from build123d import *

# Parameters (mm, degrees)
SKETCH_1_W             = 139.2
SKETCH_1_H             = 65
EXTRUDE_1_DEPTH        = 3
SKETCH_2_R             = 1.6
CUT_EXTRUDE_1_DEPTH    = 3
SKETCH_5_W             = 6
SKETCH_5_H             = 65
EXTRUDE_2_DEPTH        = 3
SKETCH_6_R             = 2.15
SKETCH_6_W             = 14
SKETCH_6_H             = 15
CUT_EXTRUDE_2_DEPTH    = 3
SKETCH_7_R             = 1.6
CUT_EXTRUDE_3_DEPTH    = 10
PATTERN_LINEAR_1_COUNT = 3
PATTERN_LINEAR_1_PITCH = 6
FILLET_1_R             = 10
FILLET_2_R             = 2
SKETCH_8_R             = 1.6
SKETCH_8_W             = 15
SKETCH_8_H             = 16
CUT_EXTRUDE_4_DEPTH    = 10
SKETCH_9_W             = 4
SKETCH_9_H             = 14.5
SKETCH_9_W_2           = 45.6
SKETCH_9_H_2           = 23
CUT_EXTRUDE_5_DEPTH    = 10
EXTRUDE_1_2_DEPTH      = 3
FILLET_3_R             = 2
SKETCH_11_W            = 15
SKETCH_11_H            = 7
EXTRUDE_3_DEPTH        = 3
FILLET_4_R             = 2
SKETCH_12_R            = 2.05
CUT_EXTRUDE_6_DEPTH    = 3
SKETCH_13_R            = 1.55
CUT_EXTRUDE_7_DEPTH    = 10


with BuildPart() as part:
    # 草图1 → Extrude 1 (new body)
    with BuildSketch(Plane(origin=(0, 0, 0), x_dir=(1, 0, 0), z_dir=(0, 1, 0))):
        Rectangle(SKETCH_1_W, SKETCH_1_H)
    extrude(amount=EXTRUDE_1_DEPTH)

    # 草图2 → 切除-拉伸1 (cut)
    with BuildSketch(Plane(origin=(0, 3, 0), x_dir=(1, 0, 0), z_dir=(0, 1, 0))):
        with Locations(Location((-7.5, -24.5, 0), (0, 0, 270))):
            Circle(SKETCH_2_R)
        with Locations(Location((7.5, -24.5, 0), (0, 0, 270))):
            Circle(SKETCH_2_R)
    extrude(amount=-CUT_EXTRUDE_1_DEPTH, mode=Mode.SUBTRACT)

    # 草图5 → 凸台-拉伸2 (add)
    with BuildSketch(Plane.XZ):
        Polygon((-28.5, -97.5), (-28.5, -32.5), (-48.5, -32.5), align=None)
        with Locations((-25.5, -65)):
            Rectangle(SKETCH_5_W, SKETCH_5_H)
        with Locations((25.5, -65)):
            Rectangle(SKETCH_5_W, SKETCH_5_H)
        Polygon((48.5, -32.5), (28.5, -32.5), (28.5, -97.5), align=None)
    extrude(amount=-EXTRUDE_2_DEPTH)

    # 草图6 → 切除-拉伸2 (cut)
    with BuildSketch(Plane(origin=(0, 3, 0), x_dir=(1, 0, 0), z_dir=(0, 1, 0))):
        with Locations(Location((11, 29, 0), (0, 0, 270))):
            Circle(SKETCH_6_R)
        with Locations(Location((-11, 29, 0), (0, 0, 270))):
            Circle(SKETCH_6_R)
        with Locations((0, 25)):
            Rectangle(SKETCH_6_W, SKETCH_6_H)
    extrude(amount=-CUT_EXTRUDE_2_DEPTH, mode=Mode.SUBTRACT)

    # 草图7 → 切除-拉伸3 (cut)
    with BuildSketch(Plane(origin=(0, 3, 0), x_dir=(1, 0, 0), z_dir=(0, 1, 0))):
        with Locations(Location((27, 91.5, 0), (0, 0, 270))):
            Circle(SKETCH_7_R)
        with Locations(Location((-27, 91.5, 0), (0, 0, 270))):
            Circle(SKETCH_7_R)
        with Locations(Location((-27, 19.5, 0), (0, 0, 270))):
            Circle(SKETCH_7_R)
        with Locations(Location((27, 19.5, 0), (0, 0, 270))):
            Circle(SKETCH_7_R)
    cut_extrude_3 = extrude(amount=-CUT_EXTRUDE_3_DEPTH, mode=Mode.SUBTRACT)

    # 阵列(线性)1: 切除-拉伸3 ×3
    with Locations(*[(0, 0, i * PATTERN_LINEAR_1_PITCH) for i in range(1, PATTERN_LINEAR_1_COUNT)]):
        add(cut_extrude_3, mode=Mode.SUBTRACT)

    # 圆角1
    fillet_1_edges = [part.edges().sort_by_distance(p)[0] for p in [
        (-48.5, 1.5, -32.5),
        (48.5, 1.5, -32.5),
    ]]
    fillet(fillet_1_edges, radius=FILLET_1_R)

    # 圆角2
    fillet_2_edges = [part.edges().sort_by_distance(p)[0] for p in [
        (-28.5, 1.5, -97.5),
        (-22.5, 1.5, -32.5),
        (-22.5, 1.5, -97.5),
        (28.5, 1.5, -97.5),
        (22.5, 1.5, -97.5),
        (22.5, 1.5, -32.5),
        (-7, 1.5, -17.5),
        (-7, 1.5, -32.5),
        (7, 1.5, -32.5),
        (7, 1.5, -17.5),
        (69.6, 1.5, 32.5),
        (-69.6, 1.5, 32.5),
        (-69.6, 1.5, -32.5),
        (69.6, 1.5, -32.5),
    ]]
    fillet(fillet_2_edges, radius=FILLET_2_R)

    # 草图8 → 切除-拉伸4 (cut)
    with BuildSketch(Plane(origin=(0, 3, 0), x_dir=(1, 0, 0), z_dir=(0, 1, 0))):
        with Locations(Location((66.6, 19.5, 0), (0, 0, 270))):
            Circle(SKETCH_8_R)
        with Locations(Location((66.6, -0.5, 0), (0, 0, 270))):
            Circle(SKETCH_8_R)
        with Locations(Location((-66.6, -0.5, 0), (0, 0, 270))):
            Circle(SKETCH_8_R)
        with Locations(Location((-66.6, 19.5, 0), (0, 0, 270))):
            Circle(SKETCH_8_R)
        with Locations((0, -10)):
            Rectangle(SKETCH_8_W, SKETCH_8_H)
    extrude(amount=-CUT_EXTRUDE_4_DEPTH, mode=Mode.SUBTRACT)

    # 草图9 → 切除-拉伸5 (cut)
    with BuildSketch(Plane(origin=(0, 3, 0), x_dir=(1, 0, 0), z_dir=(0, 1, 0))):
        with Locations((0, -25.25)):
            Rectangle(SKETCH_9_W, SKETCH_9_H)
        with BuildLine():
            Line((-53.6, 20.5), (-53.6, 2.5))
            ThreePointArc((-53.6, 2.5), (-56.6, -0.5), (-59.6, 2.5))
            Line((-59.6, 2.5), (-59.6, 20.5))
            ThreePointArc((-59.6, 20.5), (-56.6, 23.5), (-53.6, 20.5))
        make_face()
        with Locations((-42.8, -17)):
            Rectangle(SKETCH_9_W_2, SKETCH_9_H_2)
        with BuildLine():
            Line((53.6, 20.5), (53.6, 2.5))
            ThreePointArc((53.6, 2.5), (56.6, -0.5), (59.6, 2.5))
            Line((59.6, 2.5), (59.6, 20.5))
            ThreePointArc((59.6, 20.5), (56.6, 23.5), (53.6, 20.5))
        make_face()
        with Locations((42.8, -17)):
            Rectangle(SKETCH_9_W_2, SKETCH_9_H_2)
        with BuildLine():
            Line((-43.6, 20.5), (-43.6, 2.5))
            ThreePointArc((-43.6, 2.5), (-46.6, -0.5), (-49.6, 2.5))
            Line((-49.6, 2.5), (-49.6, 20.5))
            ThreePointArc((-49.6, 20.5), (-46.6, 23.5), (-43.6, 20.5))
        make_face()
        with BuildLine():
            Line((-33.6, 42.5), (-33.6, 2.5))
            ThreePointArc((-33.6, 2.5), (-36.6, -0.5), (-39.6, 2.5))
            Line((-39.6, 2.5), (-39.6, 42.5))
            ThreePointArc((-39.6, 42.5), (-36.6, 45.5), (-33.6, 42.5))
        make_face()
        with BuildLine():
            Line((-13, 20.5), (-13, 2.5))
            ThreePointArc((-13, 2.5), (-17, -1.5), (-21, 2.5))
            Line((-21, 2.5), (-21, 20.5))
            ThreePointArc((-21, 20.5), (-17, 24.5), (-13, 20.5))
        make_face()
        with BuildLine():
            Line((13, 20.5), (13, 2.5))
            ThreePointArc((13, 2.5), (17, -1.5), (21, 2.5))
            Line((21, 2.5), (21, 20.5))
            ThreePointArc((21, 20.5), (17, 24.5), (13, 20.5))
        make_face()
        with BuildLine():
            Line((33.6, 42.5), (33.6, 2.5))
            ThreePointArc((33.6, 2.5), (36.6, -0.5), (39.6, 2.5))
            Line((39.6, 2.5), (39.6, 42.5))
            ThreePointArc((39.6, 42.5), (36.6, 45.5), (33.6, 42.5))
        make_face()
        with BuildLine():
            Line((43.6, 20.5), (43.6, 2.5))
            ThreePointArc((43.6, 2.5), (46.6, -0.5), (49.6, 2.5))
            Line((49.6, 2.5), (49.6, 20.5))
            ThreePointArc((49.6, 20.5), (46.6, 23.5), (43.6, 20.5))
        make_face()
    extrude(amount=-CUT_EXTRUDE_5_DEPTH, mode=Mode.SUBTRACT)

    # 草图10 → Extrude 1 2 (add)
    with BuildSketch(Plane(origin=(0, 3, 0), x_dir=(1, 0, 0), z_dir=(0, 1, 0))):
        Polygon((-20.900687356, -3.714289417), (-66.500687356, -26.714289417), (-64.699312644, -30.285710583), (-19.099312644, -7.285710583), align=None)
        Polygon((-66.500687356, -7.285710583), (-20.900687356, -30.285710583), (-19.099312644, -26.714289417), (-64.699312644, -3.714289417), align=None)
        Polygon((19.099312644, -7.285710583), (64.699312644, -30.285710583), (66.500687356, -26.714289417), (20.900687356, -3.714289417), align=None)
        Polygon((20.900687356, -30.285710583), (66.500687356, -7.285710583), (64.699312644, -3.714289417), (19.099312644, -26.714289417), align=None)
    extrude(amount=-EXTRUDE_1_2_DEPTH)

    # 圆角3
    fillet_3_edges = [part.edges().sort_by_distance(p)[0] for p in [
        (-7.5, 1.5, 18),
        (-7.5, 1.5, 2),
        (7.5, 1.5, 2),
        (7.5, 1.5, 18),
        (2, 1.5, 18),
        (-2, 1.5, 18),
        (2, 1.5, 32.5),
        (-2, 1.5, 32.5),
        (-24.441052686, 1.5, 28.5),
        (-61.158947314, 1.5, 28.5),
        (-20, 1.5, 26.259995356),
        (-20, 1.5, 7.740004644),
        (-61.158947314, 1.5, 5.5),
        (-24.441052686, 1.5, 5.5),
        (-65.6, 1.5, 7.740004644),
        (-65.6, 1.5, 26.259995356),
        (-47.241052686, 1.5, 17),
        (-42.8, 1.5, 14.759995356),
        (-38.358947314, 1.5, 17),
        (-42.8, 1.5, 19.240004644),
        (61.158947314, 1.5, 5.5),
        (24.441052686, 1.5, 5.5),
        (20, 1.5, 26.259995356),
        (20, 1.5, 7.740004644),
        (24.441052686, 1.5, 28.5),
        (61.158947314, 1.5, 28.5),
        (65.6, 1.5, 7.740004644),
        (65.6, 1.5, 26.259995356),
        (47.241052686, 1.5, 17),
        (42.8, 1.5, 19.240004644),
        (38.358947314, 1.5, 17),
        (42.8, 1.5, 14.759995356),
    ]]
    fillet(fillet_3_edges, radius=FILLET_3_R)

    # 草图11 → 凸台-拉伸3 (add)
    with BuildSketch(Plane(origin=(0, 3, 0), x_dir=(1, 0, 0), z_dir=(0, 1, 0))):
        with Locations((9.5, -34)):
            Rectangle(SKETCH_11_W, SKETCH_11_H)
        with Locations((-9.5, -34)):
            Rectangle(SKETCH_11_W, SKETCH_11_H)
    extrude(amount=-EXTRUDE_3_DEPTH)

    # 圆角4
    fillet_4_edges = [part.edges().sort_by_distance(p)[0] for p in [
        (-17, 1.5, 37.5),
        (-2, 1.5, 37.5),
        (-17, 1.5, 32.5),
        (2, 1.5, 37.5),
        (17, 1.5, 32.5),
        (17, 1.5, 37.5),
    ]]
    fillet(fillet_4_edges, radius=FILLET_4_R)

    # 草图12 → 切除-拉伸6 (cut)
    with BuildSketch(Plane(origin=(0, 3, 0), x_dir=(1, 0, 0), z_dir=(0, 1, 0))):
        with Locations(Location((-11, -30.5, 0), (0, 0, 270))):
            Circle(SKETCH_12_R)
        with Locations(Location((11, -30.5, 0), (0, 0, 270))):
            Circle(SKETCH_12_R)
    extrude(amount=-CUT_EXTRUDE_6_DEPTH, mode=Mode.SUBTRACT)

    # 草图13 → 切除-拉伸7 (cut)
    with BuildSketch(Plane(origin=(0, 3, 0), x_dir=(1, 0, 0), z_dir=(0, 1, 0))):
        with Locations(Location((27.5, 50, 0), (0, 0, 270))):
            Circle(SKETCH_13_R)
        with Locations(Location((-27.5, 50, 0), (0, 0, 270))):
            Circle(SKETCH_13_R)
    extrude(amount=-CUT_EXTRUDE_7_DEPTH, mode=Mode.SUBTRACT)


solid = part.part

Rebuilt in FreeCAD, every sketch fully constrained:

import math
import FreeCAD as App
import Part
import Sketcher


def edges_at(feature, points):
    """Names of the edges that pass closest to the given points."""
    edges = feature.Shape.Edges
    near = lambda p: min(range(len(edges)), key=lambda i: edges[i].distToShape(Part.Vertex(*p))[0])
    return sorted({f"Edge{near(p) + 1}" for p in points})


def add_polygon(sketch, points):
    """Adds a closed chain of lines whose ends are joined by coincident constraints."""
    first, n = sketch.GeometryCount, len(points)
    for a, b in zip(points, points[1:] + points[:1]):
        sketch.addGeometry(Part.LineSegment(App.Vector(*a, 0), App.Vector(*b, 0)), False)
    for i in range(n):
        sketch.addConstraint(Sketcher.Constraint("Coincident", first + i, 2, first + (i + 1) % n, 1))

doc = App.newDocument("Part")
body = doc.addObject("PartDesign::Body", "Body")

# Sketch on XZ plane
sketch1 = body.newObject("Sketcher::SketchObject", "Sketch")
sketch1.AttachmentSupport = (doc.getObject("XZ_Plane"), [""])
sketch1.MapMode = "FlatFace"
add_polygon(sketch1, [(-70, -32), (-70, 32), (70, 32), (70, -32)])  # lines 0-3
sketch1.addConstraint([
    Sketcher.Constraint("Vertical", 0),
    Sketcher.Constraint("Horizontal", 1),
    Sketcher.Constraint("Vertical", 2),
    Sketcher.Constraint("Horizontal", 3),
    Sketcher.Constraint("Symmetric", 0, 2, 2, 2, -1, 1),
    Sketcher.Constraint("DistanceY", 0, 1, 0, 2, 65.0),
    Sketcher.Constraint("DistanceX", 1, 1, 1, 2, 139.2),
])
pad1 = body.newObject("PartDesign::Pad", "Pad")
pad1.Profile = sketch1
pad1.Length = 3
pad1.Reversed = True

# Sketch on XZ plane
sketch2 = body.newObject("Sketcher::SketchObject", "Sketch001")
sketch2.AttachmentSupport = (doc.getObject("XZ_Plane"), [""])
sketch2.MapMode = "FlatFace"
sketch2.AttachmentOffset = App.Placement(App.Vector(0, 0, -3), App.Rotation())
sketch2.addGeometry([
    Part.Circle(App.Vector(-7.5, 24.5, 0), App.Vector(0, 0, 1), 1.6),
    Part.Circle(App.Vector(7.5, 24.5, 0), App.Vector(0, 0, 1), 1.6),
], False)
sketch2.addConstraint([
    Sketcher.Constraint("Equal", 0, 1),
    Sketcher.Constraint("Symmetric", 0, 3, 1, 3, -2),
    Sketcher.Constraint("Diameter", 0, 3.2),
    Sketcher.Constraint("DistanceX", 0, 3, 1, 3, 15.0),
    Sketcher.Constraint("DistanceY", -1, 1, 0, 3, 24.5),
])
pocket1 = body.newObject("PartDesign::Pocket", "Pocket")
pocket1.Profile = sketch2
pocket1.Length = 3
pocket1.Reversed = True

# Sketch on XZ plane
sketch3 = body.newObject("Sketcher::SketchObject", "Sketch002")
sketch3.AttachmentSupport = (doc.getObject("XZ_Plane"), [""])
sketch3.MapMode = "FlatFace"
add_polygon(sketch3, [(-48, -32), (-28, -98), (-22, -98), (-22, -32)])  # lines 0-3
add_polygon(sketch3, [(22, -32), (22, -98), (28, -98), (48, -32)])  # lines 4-7
sketch3.addConstraint([
    Sketcher.Constraint("Horizontal", 1),
    Sketcher.Constraint("Vertical", 2),
    Sketcher.Constraint("Horizontal", 3),
    Sketcher.Constraint("Vertical", 4),
    Sketcher.Constraint("Horizontal", 5),
    Sketcher.Constraint("Horizontal", 7),
    Sketcher.Constraint("Symmetric", 1, 2, 4, 2, -2),
    Sketcher.Constraint("Symmetric", 3, 2, 6, 2, -2),
    Sketcher.Constraint("Equal", 1, 5),
    Sketcher.Constraint("DistanceX", 1, 1, 1, 2, 6.0),
    Sketcher.Constraint("DistanceX", 3, 2, 3, 1, 26.0),
    Sketcher.Constraint("DistanceY", 2, 1, 2, 2, 65.0),
    Sketcher.Constraint("DistanceX", 1, 2, 4, 2, 45.0),
    Sketcher.Constraint("DistanceY", 0, 2, -1, 1, 97.5),
])
pad2 = body.newObject("PartDesign::Pad", "Pad001")
pad2.Profile = sketch3
pad2.Length = 3
pad2.Reversed = True

# Sketch on XZ plane
sketch4 = body.newObject("Sketcher::SketchObject", "Sketch003")
sketch4.AttachmentSupport = (doc.getObject("XZ_Plane"), [""])
sketch4.MapMode = "FlatFace"
sketch4.AttachmentOffset = App.Placement(App.Vector(0, 0, -3), App.Rotation())
sketch4.addGeometry(Part.Circle(App.Vector(11, -29, 0), App.Vector(0, 0, 1), 2.1), False)  # 0
sketch4.addGeometry(Part.Circle(App.Vector(-11, -29, 0), App.Vector(0, 0, 1), 2.1), False)  # 1
add_polygon(sketch4, [(-7, -32.5), (-7, -17.5), (7, -17.5), (7, -32.5)])  # lines 2-5
sketch4.addConstraint([
    Sketcher.Constraint("Vertical", 2),
    Sketcher.Constraint("Horizontal", 3),
    Sketcher.Constraint("Vertical", 4),
    Sketcher.Constraint("Horizontal", 5),
    Sketcher.Constraint("Equal", 0, 1),
    Sketcher.Constraint("Symmetric", 0, 3, 1, 3, -2),
    Sketcher.Constraint("Diameter", 0, 4.3),
    Sketcher.Constraint("DistanceX", 3, 1, 3, 2, 14.0),
    Sketcher.Constraint("DistanceY", 2, 1, 2, 2, 15.0),
    Sketcher.Constraint("DistanceX", -1, 1, 0, 3, 11.0),
    Sketcher.Constraint("DistanceY", 0, 3, -1, 1, 29.0),
    Sketcher.Constraint("DistanceX", 2, 2, -1, 1, 7.0),
    Sketcher.Constraint("DistanceY", 2, 2, -1, 1, 17.5),
])
pocket2 = body.newObject("PartDesign::Pocket", "Pocket001")
pocket2.Profile = sketch4
pocket2.Length = 3
pocket2.Reversed = True

# Sketch on XZ plane
sketch5 = body.newObject("Sketcher::SketchObject", "Sketch004")
sketch5.AttachmentSupport = (doc.getObject("XZ_Plane"), [""])
sketch5.MapMode = "FlatFace"
sketch5.AttachmentOffset = App.Placement(App.Vector(0, 0, -3), App.Rotation())
sketch5.addGeometry([
    Part.Circle(App.Vector(27, -91.5, 0), App.Vector(0, 0, 1), 1.6),
    Part.Circle(App.Vector(-27, -91.5, 0), App.Vector(0, 0, 1), 1.6),
    Part.Circle(App.Vector(-27, -19.5, 0), App.Vector(0, 0, 1), 1.6),
    Part.Circle(App.Vector(27, -19.5, 0), App.Vector(0, 0, 1), 1.6),
], False)
sketch5.addConstraint([
    Sketcher.Constraint("Equal", 0, 1),
    Sketcher.Constraint("Equal", 1, 2),
    Sketcher.Constraint("Equal", 2, 3),
    Sketcher.Constraint("Symmetric", 0, 3, 1, 3, -2),
    Sketcher.Constraint("Symmetric", 2, 3, 3, 3, -2),
    Sketcher.Constraint("Vertical", 1, 3, 2, 3),
    Sketcher.Constraint("Diameter", 0, 3.2),
    Sketcher.Constraint("DistanceX", -1, 1, 0, 3, 27.0),
    Sketcher.Constraint("DistanceY", 1, 3, 2, 3, 72.0),
    Sketcher.Constraint("DistanceY", 0, 3, -1, 1, 91.5),
])
pocket3 = body.newObject("PartDesign::Pocket", "Pocket002")
pocket3.Profile = sketch5
pocket3.Length = 10
pocket3.Reversed = True
doc.recompute()

linearpattern = body.newObject("PartDesign::LinearPattern", "LinearPattern")
linearpattern.Originals = [pocket3]
linearpattern.Direction = (doc.getObject("Z_Axis"), [""])
linearpattern.Mode = "offset"
linearpattern.Offset = 6
linearpattern.Occurrences = 3
body.Tip = linearpattern
doc.recompute()

fillet = body.newObject("PartDesign::Fillet", "Fillet")
fillet.Base = (linearpattern, edges_at(linearpattern, [(-48.5, 1.5, -32.5), (48.5, 1.5, -32.5)]))
fillet.Radius = 10
doc.recompute()

fillet2 = body.newObject("PartDesign::Fillet", "Fillet001")
fillet2.Base = (fillet, edges_at(fillet, [
    (-28.5, 1.5, -97.5),
    (-22.5, 1.5, -32.5),
    (-22.5, 1.5, -97.5),
    (28.5, 1.5, -97.5),
    (22.5, 1.5, -97.5),
    (22.5, 1.5, -32.5),
    (-7, 1.5, -17.5),
    (-7, 1.5, -32.5),
    (7, 1.5, -32.5),
    (7, 1.5, -17.5),
    (69.6, 1.5, 32.5),
    (-69.6, 1.5, 32.5),
    (-69.6, 1.5, -32.5),
    (69.6, 1.5, -32.5),
]))
fillet2.Radius = 2

# Sketch on XZ plane
sketch6 = body.newObject("Sketcher::SketchObject", "Sketch005")
sketch6.AttachmentSupport = (doc.getObject("XZ_Plane"), [""])
sketch6.MapMode = "FlatFace"
sketch6.AttachmentOffset = App.Placement(App.Vector(0, 0, -3), App.Rotation())
sketch6.addGeometry(Part.Circle(App.Vector(66.6, -19.5, 0), App.Vector(0, 0, 1), 1.6), False)  # 0
sketch6.addGeometry(Part.Circle(App.Vector(66.6, 0.5, 0), App.Vector(0, 0, 1), 1.6), False)  # 1
sketch6.addGeometry(Part.Circle(App.Vector(-66.6, 0.5, 0), App.Vector(0, 0, 1), 1.6), False)  # 2
sketch6.addGeometry(Part.Circle(App.Vector(-66.6, -19.5, 0), App.Vector(0, 0, 1), 1.6), False)  # 3
add_polygon(sketch6, [(-7.5, 2), (-7.5, 18), (7.5, 18), (7.5, 2)])  # lines 4-7
sketch6.addConstraint([
    Sketcher.Constraint("Vertical", 4),
    Sketcher.Constraint("Horizontal", 5),
    Sketcher.Constraint("Vertical", 6),
    Sketcher.Constraint("Horizontal", 7),
    Sketcher.Constraint("Equal", 0, 1),
    Sketcher.Constraint("Equal", 1, 2),
    Sketcher.Constraint("Equal", 2, 3),
    Sketcher.Constraint("Symmetric", 1, 3, 2, 3, -2),
    Sketcher.Constraint("Symmetric", 0, 3, 3, 3, -2),
    Sketcher.Constraint("Vertical", 0, 3, 1, 3),
    Sketcher.Constraint("Diameter", 0, 3.2),
    Sketcher.Constraint("DistanceX", 5, 1, 5, 2, 15.0),
    Sketcher.Constraint("DistanceY", 4, 1, 4, 2, 16.0),
    Sketcher.Constraint("DistanceY", -1, 1, 4, 2, 18.0),
    Sketcher.Constraint("DistanceY", 0, 3, 1, 3, 20.0),
    Sketcher.Constraint("DistanceX", -1, 1, 0, 3, 66.6),
    Sketcher.Constraint("DistanceY", 0, 3, -1, 1, 19.5),
    Sketcher.Constraint("DistanceX", 4, 2, -1, 1, 7.5),
])
pocket4 = body.newObject("PartDesign::Pocket", "Pocket003")
pocket4.Profile = sketch6
pocket4.Length = 10
pocket4.Reversed = True

# Sketch on XZ plane
sketch7 = body.newObject("Sketcher::SketchObject", "Sketch006")
sketch7.AttachmentSupport = (doc.getObject("XZ_Plane"), [""])
sketch7.MapMode = "FlatFace"
sketch7.AttachmentOffset = App.Placement(App.Vector(0, 0, -3), App.Rotation())
add_polygon(sketch7, [(-2, 18), (-2, 32.5), (2, 32.5), (2, 18)])  # lines 0-3
sketch7.addGeometry(Part.LineSegment(App.Vector(-53.6, -2.5, 0), App.Vector(-53.6, -20.5, 0)), False)  # 4
sketch7.addGeometry(Part.ArcOfCircle(Part.Circle(App.Vector(-56.6, -20.5, 0), App.Vector(0, 0, 1), 3), math.radians(180), math.radians(360)), False)  # 5
sketch7.addGeometry(Part.LineSegment(App.Vector(-59.6, -20.5, 0), App.Vector(-59.6, -2.5, 0)), False)  # 6
sketch7.addGeometry(Part.ArcOfCircle(Part.Circle(App.Vector(-56.6, -2.5, 0), App.Vector(0, 0, 1), 3), math.radians(0), math.radians(180)), False)  # 7
add_polygon(sketch7, [(-65.6, 5.5), (-65.6, 28.5), (-20, 28.5), (-20, 5.5)])  # lines 8-11
sketch7.addGeometry(Part.LineSegment(App.Vector(53.6, -20.5, 0), App.Vector(53.6, -2.5, 0)), False)  # 12
sketch7.addGeometry(Part.ArcOfCircle(Part.Circle(App.Vector(56.6, -2.5, 0), App.Vector(0, 0, 1), 3), math.radians(0), math.radians(180)), False)  # 13
sketch7.addGeometry(Part.LineSegment(App.Vector(59.6, -2.5, 0), App.Vector(59.6, -20.5, 0)), False)  # 14
sketch7.addGeometry(Part.ArcOfCircle(Part.Circle(App.Vector(56.6, -20.5, 0), App.Vector(0, 0, 1), 3), math.radians(180), math.radians(360)), False)  # 15
add_polygon(sketch7, [(20, 5.5), (20, 28.5), (65.6, 28.5), (65.6, 5.5)])  # lines 16-19
sketch7.addGeometry(Part.LineSegment(App.Vector(-43.6, -2.5, 0), App.Vector(-43.6, -20.5, 0)), False)  # 20
sketch7.addGeometry(Part.ArcOfCircle(Part.Circle(App.Vector(-46.6, -20.5, 0), App.Vector(0, 0, 1), 3), math.radians(180), math.radians(360)), False)  # 21
sketch7.addGeometry(Part.LineSegment(App.Vector(-49.6, -20.5, 0), App.Vector(-49.6, -2.5, 0)), False)  # 22
sketch7.addGeometry(Part.ArcOfCircle(Part.Circle(App.Vector(-46.6, -2.5, 0), App.Vector(0, 0, 1), 3), math.radians(0), math.radians(180)), False)  # 23
sketch7.addGeometry(Part.LineSegment(App.Vector(-33.6, -2.5, 0), App.Vector(-33.6, -42.5, 0)), False)  # 24
sketch7.addGeometry(Part.ArcOfCircle(Part.Circle(App.Vector(-36.6, -42.5, 0), App.Vector(0, 0, 1), 3), math.radians(180), math.radians(360)), False)  # 25
sketch7.addGeometry(Part.LineSegment(App.Vector(-39.6, -42.5, 0), App.Vector(-39.6, -2.5, 0)), False)  # 26
sketch7.addGeometry(Part.ArcOfCircle(Part.Circle(App.Vector(-36.6, -2.5, 0), App.Vector(0, 0, 1), 3), math.radians(0), math.radians(180)), False)  # 27
sketch7.addGeometry(Part.LineSegment(App.Vector(-13, -2.5, 0), App.Vector(-13, -20.5, 0)), False)  # 28
sketch7.addGeometry(Part.ArcOfCircle(Part.Circle(App.Vector(-17, -20.5, 0), App.Vector(0, 0, 1), 4), math.radians(180), math.radians(360)), False)  # 29
sketch7.addGeometry(Part.LineSegment(App.Vector(-21, -20.5, 0), App.Vector(-21, -2.5, 0)), False)  # 30
sketch7.addGeometry(Part.ArcOfCircle(Part.Circle(App.Vector(-17, -2.5, 0), App.Vector(0, 0, 1), 4), math.radians(0), math.radians(180)), False)  # 31
sketch7.addGeometry(Part.LineSegment(App.Vector(13, -20.5, 0), App.Vector(13, -2.5, 0)), False)  # 32
sketch7.addGeometry(Part.ArcOfCircle(Part.Circle(App.Vector(17, -2.5, 0), App.Vector(0, 0, 1), 4), math.radians(0), math.radians(180)), False)  # 33
sketch7.addGeometry(Part.LineSegment(App.Vector(21, -2.5, 0), App.Vector(21, -20.5, 0)), False)  # 34
sketch7.addGeometry(Part.ArcOfCircle(Part.Circle(App.Vector(17, -20.5, 0), App.Vector(0, 0, 1), 4), math.radians(180), math.radians(360)), False)  # 35
sketch7.addGeometry(Part.LineSegment(App.Vector(33.6, -42.5, 0), App.Vector(33.6, -2.5, 0)), False)  # 36
sketch7.addGeometry(Part.ArcOfCircle(Part.Circle(App.Vector(36.6, -2.5, 0), App.Vector(0, 0, 1), 3), math.radians(0), math.radians(180)), False)  # 37
sketch7.addGeometry(Part.LineSegment(App.Vector(39.6, -2.5, 0), App.Vector(39.6, -42.5, 0)), False)  # 38
sketch7.addGeometry(Part.ArcOfCircle(Part.Circle(App.Vector(36.6, -42.5, 0), App.Vector(0, 0, 1), 3), math.radians(180), math.radians(360)), False)  # 39
sketch7.addGeometry(Part.LineSegment(App.Vector(43.6, -20.5, 0), App.Vector(43.6, -2.5, 0)), False)  # 40
sketch7.addGeometry(Part.ArcOfCircle(Part.Circle(App.Vector(46.6, -2.5, 0), App.Vector(0, 0, 1), 3), math.radians(0), math.radians(180)), False)  # 41
sketch7.addGeometry(Part.LineSegment(App.Vector(49.6, -2.5, 0), App.Vector(49.6, -20.5, 0)), False)  # 42
sketch7.addGeometry(Part.ArcOfCircle(Part.Circle(App.Vector(46.6, -20.5, 0), App.Vector(0, 0, 1), 3), math.radians(180), math.radians(360)), False)  # 43
sketch7.addConstraint([
    Sketcher.Constraint("Tangent", 4, 2, 5, 2),
    Sketcher.Constraint("Tangent", 5, 1, 6, 1),
    Sketcher.Constraint("Tangent", 6, 2, 7, 2),
    Sketcher.Constraint("Tangent", 7, 1, 4, 1),
    Sketcher.Constraint("Tangent", 12, 2, 13, 2),
    Sketcher.Constraint("Tangent", 13, 1, 14, 1),
    Sketcher.Constraint("Tangent", 14, 2, 15, 2),
    Sketcher.Constraint("Tangent", 15, 1, 12, 1),
    Sketcher.Constraint("Tangent", 20, 2, 21, 2),
    Sketcher.Constraint("Tangent", 21, 1, 22, 1),
    Sketcher.Constraint("Tangent", 22, 2, 23, 2),
    Sketcher.Constraint("Tangent", 23, 1, 20, 1),
    Sketcher.Constraint("Tangent", 24, 2, 25, 2),
    Sketcher.Constraint("Tangent", 25, 1, 26, 1),
    Sketcher.Constraint("Tangent", 26, 2, 27, 2),
    Sketcher.Constraint("Tangent", 27, 1, 24, 1),
    Sketcher.Constraint("Tangent", 28, 2, 29, 2),
    Sketcher.Constraint("Tangent", 29, 1, 30, 1),
    Sketcher.Constraint("Tangent", 30, 2, 31, 2),
    Sketcher.Constraint("Tangent", 31, 1, 28, 1),
    Sketcher.Constraint("Tangent", 32, 2, 33, 2),
    Sketcher.Constraint("Tangent", 33, 1, 34, 1),
    Sketcher.Constraint("Tangent", 34, 2, 35, 2),
    Sketcher.Constraint("Tangent", 35, 1, 32, 1),
    Sketcher.Constraint("Tangent", 36, 2, 37, 2),
    Sketcher.Constraint("Tangent", 37, 1, 38, 1),
    Sketcher.Constraint("Tangent", 38, 2, 39, 2),
    Sketcher.Constraint("Tangent", 39, 1, 36, 1),
    Sketcher.Constraint("Tangent", 40, 2, 41, 2),
    Sketcher.Constraint("Tangent", 41, 1, 42, 1),
    Sketcher.Constraint("Tangent", 42, 2, 43, 2),
    Sketcher.Constraint("Tangent", 43, 1, 40, 1),
    Sketcher.Constraint("Vertical", 0),
    Sketcher.Constraint("Horizontal", 1),
    Sketcher.Constraint("Vertical", 2),
    Sketcher.Constraint("Horizontal", 3),
    Sketcher.Constraint("Vertical", 4),
    Sketcher.Constraint("Vertical", 6),
    Sketcher.Constraint("Vertical", 8),
    Sketcher.Constraint("Horizontal", 9),
    Sketcher.Constraint("Vertical", 10),
    Sketcher.Constraint("Horizontal", 11),
    Sketcher.Constraint("Vertical", 12),
    Sketcher.Constraint("Vertical", 14),
    Sketcher.Constraint("Vertical", 16),
    Sketcher.Constraint("Horizontal", 17),
    Sketcher.Constraint("Vertical", 18),
    Sketcher.Constraint("Horizontal", 19),
    Sketcher.Constraint("Vertical", 20),
    Sketcher.Constraint("Vertical", 22),
    Sketcher.Constraint("Vertical", 24),
    Sketcher.Constraint("Vertical", 26),
    Sketcher.Constraint("Vertical", 28),
    Sketcher.Constraint("Vertical", 30),
    Sketcher.Constraint("Vertical", 32),
    Sketcher.Constraint("Vertical", 34),
    Sketcher.Constraint("Vertical", 36),
    Sketcher.Constraint("Vertical", 38),
    Sketcher.Constraint("Vertical", 40),
    Sketcher.Constraint("Vertical", 42),
    Sketcher.Constraint("Equal", 7, 13),
    Sketcher.Constraint("Equal", 15, 21),
    Sketcher.Constraint("Equal", 23, 25),
    Sketcher.Constraint("Equal", 31, 33),
    Sketcher.Constraint("Equal", 27, 37),
    Sketcher.Constraint("Equal", 39, 41),
    Sketcher.Constraint("Symmetric", 7, 3, 13, 3, -2),
    Sketcher.Constraint("Symmetric", 31, 3, 33, 3, -2),
    Sketcher.Constraint("Symmetric", 27, 3, 37, 3, -2),
    Sketcher.Constraint("Symmetric", 23, 3, 41, 3, -2),
    Sketcher.Constraint("Symmetric", 9, 2, 16, 2, -2),
    Sketcher.Constraint("Symmetric", 11, 2, 18, 2, -2),
    Sketcher.Constraint("Horizontal", 5, 3, 15, 3),
    Sketcher.Constraint("Horizontal", 15, 3, 21, 3),
    Sketcher.Constraint("Horizontal", 13, 3, 23, 3),
    Sketcher.Constraint("Horizontal", 23, 3, 27, 3),
    Sketcher.Constraint("Horizontal", 21, 3, 29, 3),
    Sketcher.Constraint("Horizontal", 27, 3, 31, 3),
    Sketcher.Constraint("Horizontal", 29, 3, 35, 3),
    Sketcher.Constraint("Horizontal", 25, 3, 39, 3),
    Sketcher.Constraint("Horizontal", 35, 3, 43, 3),
    Sketcher.Constraint("Radius", 5, 3.0),
    Sketcher.Constraint("Radius", 29, 4.0),
    Sketcher.Constraint("DistanceX", 1, 1, 1, 2, 4.0),
    Sketcher.Constraint("DistanceY", 4, 2, 4, 1, 18.0),
    Sketcher.Constraint("DistanceY", 8, 1, 8, 2, 23.0),
    Sketcher.Constraint("DistanceY", 24, 2, 24, 1, 40.0),
    Sketcher.Constraint("DistanceX", 9, 1, 9, 2, 45.6),
    Sketcher.Constraint("DistanceY", 0, 1, 0, 2, 14.5),
    Sketcher.Constraint("DistanceX", 29, 3, -1, 1, 17.0),
    Sketcher.Constraint("DistanceX", 0, 2, -1, 1, 2.0),
    Sketcher.Constraint("DistanceY", -1, 1, 2, 2, 18.0),
    Sketcher.Constraint("DistanceX", 9, 2, -1, 1, 20.0),
    Sketcher.Constraint("DistanceX", 5, 3, 21, 3, 10.0),
    Sketcher.Constraint("DistanceX", 21, 3, 25, 3, 10.0),
    Sketcher.Constraint("DistanceY", 31, 3, 0, 2, 35.0),
    Sketcher.Constraint("DistanceX", 8, 2, 6, 2, 6.0),
    Sketcher.Constraint("DistanceY", 6, 2, 8, 2, 31.0),
])
pocket5 = body.newObject("PartDesign::Pocket", "Pocket004")
pocket5.Profile = sketch7
pocket5.Length = 10
pocket5.Reversed = True

# Sketch on XZ plane
sketch8 = body.newObject("Sketcher::SketchObject", "Sketch007")
sketch8.AttachmentSupport = (doc.getObject("XZ_Plane"), [""])
sketch8.MapMode = "FlatFace"
sketch8.AttachmentOffset = App.Placement(App.Vector(0, 0, -3), App.Rotation())
add_polygon(sketch8, [(-19.1, 7.3), (-20.9, 3.7), (-42.8, 14.8), (-64.7, 3.7), (-66.5, 7.3), (-47.2, 17), (-66.5, 26.7), (-64.7, 30.3), (-42.8, 19.2), (-20.9, 30.3), (-19.1, 26.7), (-38.4, 17)])  # lines 0-11
add_polygon(sketch8, [(20.9, 3.7), (19.1, 7.3), (38.4, 17), (19.1, 26.7), (20.9, 30.3), (42.8, 19.2), (64.7, 30.3), (66.5, 26.7), (47.2, 17), (66.5, 7.3), (64.7, 3.7), (42.8, 14.8)])  # lines 12-23
sketch8.addConstraint([
    Sketcher.Constraint("Symmetric", 11, 2, 12, 2, -2),
    Sketcher.Constraint("Symmetric", 10, 2, 13, 2, -2),
    Sketcher.Constraint("Symmetric", 9, 2, 14, 2, -2),
    Sketcher.Constraint("Symmetric", 8, 2, 15, 2, -2),
    Sketcher.Constraint("Symmetric", 7, 2, 16, 2, -2),
    Sketcher.Constraint("Symmetric", 6, 2, 17, 2, -2),
    Sketcher.Constraint("Symmetric", 5, 2, 18, 2, -2),
    Sketcher.Constraint("Symmetric", 4, 2, 19, 2, -2),
    Sketcher.Constraint("Symmetric", 3, 2, 20, 2, -2),
    Sketcher.Constraint("Symmetric", 2, 2, 21, 2, -2),
    Sketcher.Constraint("Symmetric", 1, 2, 22, 2, -2),
    Sketcher.Constraint("Symmetric", 0, 2, 23, 2, -2),
    Sketcher.Constraint("Perpendicular", 0, 1),
    Sketcher.Constraint("Perpendicular", 2, 3),
    Sketcher.Constraint("Perpendicular", 3, 4),
    Sketcher.Constraint("Parallel", 1, 5),
    Sketcher.Constraint("Perpendicular", 5, 6),
    Sketcher.Constraint("Perpendicular", 6, 7),
    Sketcher.Constraint("Parallel", 4, 8),
    Sketcher.Constraint("Perpendicular", 8, 9),
    Sketcher.Constraint("Perpendicular", 9, 10),
    Sketcher.Constraint("Parallel", 7, 11),
    Sketcher.Constraint("Perpendicular", 10, 12),
    Sketcher.Constraint("Horizontal", 0, 2, 2, 2),
    Sketcher.Constraint("Horizontal", 6, 2, 8, 2),
    Sketcher.Constraint("Horizontal", 5, 2, 9, 2),
    Sketcher.Constraint("Horizontal", 4, 2, 10, 2),
    Sketcher.Constraint("Horizontal", 3, 2, 11, 2),
    Sketcher.Constraint("Vertical", 3, 2, 5, 2),
    Sketcher.Constraint("Vertical", 2, 2, 6, 2),
    Sketcher.Constraint("Distance", 0, 4.0),
    Sketcher.Constraint("DistanceY", -1, 1, 4, 2, 17.0),
    Sketcher.Constraint("DistanceY", 2, 2, 5, 2, 23.0),
    Sketcher.Constraint("DistanceX", 0, 2, 12, 2, 40.0),
    Sketcher.Constraint("DistanceX", 1, 2, -1, 1, 42.8),
    Sketcher.Constraint("Distance", 1, 24.527281),
])
pad3 = body.newObject("PartDesign::Pad", "Pad002")
pad3.Profile = sketch8
pad3.Length = 3
doc.recompute()

fillet3 = body.newObject("PartDesign::Fillet", "Fillet002")
fillet3.Base = (pad3, edges_at(pad3, [
    (-7.5, 1.5, 18),
    (-7.5, 1.5, 2),
    (7.5, 1.5, 2),
    (7.5, 1.5, 18),
    (2, 1.5, 18),
    (-2, 1.5, 18),
    (2, 1.5, 32.5),
    (-2, 1.5, 32.5),
    (-24.441, 1.5, 28.5),
    (-61.159, 1.5, 28.5),
    (-20, 1.5, 26.26),
    (-20, 1.5, 7.74),
    (-61.159, 1.5, 5.5),
    (-24.441, 1.5, 5.5),
    (-65.6, 1.5, 7.74),
    (-65.6, 1.5, 26.26),
    (-47.241, 1.5, 17),
    (-42.8, 1.5, 14.76),
    (-38.359, 1.5, 17),
    (-42.8, 1.5, 19.24),
    (61.159, 1.5, 5.5),
    (24.441, 1.5, 5.5),
    (20, 1.5, 26.26),
    (20, 1.5, 7.74),
    (24.441, 1.5, 28.5),
    (61.159, 1.5, 28.5),
    (65.6, 1.5, 7.74),
    (65.6, 1.5, 26.26),
    (47.241, 1.5, 17),
    (42.8, 1.5, 19.24),
    (38.359, 1.5, 17),
    (42.8, 1.5, 14.76),
]))
fillet3.Radius = 2

# Sketch on XZ plane
sketch9 = body.newObject("Sketcher::SketchObject", "Sketch008")
sketch9.AttachmentSupport = (doc.getObject("XZ_Plane"), [""])
sketch9.MapMode = "FlatFace"
sketch9.AttachmentOffset = App.Placement(App.Vector(0, 0, -3), App.Rotation())
add_polygon(sketch9, [(2, 30), (2, 38), (17, 38), (17, 30)])  # lines 0-3
add_polygon(sketch9, [(-17, 30), (-17, 38), (-2, 38), (-2, 30)])  # lines 4-7
sketch9.addConstraint([
    Sketcher.Constraint("Vertical", 0),
    Sketcher.Constraint("Horizontal", 1),
    Sketcher.Constraint("Vertical", 2),
    Sketcher.Constraint("Horizontal", 3),
    Sketcher.Constraint("Vertical", 4),
    Sketcher.Constraint("Horizontal", 5),
    Sketcher.Constraint("Vertical", 6),
    Sketcher.Constraint("Horizontal", 7),
    Sketcher.Constraint("Symmetric", 1, 2, 4, 2, -2),
    Sketcher.Constraint("Symmetric", 3, 2, 6, 2, -2),
    Sketcher.Constraint("DistanceX", 1, 1, 1, 2, 15.0),
    Sketcher.Constraint("DistanceY", 0, 1, 0, 2, 7.0),
    Sketcher.Constraint("DistanceX", -1, 1, 0, 2, 2.0),
    Sketcher.Constraint("DistanceY", -1, 1, 0, 2, 37.5),
])
pad4 = body.newObject("PartDesign::Pad", "Pad003")
pad4.Profile = sketch9
pad4.Length = 3
doc.recompute()

fillet4 = body.newObject("PartDesign::Fillet", "Fillet003")
fillet4.Base = (pad4, edges_at(pad4, [
    (-17, 1.5, 37.5),
    (-2, 1.5, 37.5),
    (-17, 1.5, 32.5),
    (2, 1.5, 37.5),
    (17, 1.5, 32.5),
    (17, 1.5, 37.5),
]))
fillet4.Radius = 2

# Sketch on XZ plane
sketch10 = body.newObject("Sketcher::SketchObject", "Sketch009")
sketch10.AttachmentSupport = (doc.getObject("XZ_Plane"), [""])
sketch10.MapMode = "FlatFace"
sketch10.AttachmentOffset = App.Placement(App.Vector(0, 0, -3), App.Rotation())
sketch10.addGeometry([
    Part.Circle(App.Vector(-11, 30.5, 0), App.Vector(0, 0, 1), 2),
    Part.Circle(App.Vector(11, 30.5, 0), App.Vector(0, 0, 1), 2),
], False)
sketch10.addConstraint([
    Sketcher.Constraint("Equal", 0, 1),
    Sketcher.Constraint("Symmetric", 0, 3, 1, 3, -2),
    Sketcher.Constraint("Diameter", 0, 4.1),
    Sketcher.Constraint("DistanceX", 0, 3, -1, 1, 11.0),
    Sketcher.Constraint("DistanceY", -1, 1, 0, 3, 30.5),
])
pocket6 = body.newObject("PartDesign::Pocket", "Pocket005")
pocket6.Profile = sketch10
pocket6.Length = 3
pocket6.Reversed = True

# Sketch on XZ plane
sketch11 = body.newObject("Sketcher::SketchObject", "Sketch010")
sketch11.AttachmentSupport = (doc.getObject("XZ_Plane"), [""])
sketch11.MapMode = "FlatFace"
sketch11.AttachmentOffset = App.Placement(App.Vector(0, 0, -3), App.Rotation())
sketch11.addGeometry([
    Part.Circle(App.Vector(27.5, -50, 0), App.Vector(0, 0, 1), 1.6),
    Part.Circle(App.Vector(-27.5, -50, 0), App.Vector(0, 0, 1), 1.6),
], False)
sketch11.addConstraint([
    Sketcher.Constraint("Equal", 0, 1),
    Sketcher.Constraint("Symmetric", 0, 3, 1, 3, -2),
    Sketcher.Constraint("Diameter", 0, 3.1),
    Sketcher.Constraint("DistanceY", 0, 3, -1, 1, 50.0),
    Sketcher.Constraint("DistanceX", 1, 3, 0, 3, 55.0),
])
pocket7 = body.newObject("PartDesign::Pocket", "Pocket006")
pocket7.Profile = sketch11
pocket7.Length = 10
pocket7.Reversed = True

doc.recompute()
